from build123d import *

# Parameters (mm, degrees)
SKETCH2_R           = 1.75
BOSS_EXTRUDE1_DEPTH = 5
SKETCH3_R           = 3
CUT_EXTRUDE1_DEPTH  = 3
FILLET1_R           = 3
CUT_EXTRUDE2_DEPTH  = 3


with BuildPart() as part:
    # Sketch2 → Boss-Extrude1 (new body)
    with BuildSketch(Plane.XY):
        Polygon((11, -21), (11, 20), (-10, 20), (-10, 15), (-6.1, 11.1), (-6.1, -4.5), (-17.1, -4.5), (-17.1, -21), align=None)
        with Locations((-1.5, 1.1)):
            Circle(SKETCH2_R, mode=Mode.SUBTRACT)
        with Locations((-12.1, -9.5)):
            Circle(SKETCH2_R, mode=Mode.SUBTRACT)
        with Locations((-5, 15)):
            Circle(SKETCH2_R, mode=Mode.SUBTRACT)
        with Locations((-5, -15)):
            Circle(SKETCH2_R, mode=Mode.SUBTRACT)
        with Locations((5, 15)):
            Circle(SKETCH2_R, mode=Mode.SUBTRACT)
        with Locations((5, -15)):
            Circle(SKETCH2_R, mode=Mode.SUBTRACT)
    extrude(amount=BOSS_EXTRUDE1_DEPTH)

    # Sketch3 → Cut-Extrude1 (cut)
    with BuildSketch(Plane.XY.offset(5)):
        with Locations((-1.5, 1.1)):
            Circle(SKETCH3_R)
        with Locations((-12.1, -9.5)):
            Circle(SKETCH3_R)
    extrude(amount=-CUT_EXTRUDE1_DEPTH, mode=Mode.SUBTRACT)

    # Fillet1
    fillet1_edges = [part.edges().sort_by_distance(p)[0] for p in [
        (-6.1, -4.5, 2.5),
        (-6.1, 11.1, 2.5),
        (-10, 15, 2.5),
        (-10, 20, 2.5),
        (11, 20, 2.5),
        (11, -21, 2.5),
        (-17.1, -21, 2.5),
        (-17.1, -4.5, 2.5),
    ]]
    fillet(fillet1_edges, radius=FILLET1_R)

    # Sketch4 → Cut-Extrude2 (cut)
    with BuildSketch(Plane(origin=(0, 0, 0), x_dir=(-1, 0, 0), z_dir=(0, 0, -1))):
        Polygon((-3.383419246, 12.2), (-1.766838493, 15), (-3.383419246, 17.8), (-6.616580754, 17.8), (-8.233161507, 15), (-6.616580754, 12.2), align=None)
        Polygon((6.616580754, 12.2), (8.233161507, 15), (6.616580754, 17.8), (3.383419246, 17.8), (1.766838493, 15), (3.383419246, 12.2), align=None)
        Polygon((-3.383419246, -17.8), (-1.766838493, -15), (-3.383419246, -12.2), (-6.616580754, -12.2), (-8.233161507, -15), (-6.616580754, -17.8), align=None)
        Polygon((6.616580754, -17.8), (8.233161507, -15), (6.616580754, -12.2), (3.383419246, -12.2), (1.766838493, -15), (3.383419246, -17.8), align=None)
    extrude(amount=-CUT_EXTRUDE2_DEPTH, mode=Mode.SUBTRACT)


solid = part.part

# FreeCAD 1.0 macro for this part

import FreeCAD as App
import Part
import Sketcher
Q = App.Units.Quantity


def edges_at(feature, points):
    """Names of the edges that pass closest to the given points."""
    edges = feature.Shape.Edges
    near = lambda p: min(range(len(edges)), key=lambda i: edges[i].distToShape(Part.Vertex(*p))[0])
    return sorted({f"Edge{near(p) + 1}" for p in points})

doc = App.newDocument("Part")
params = doc.addObject("Spreadsheet::Sheet", "Params")
for row, (alias, value) in enumerate([
    ("sketch1_diameter", "3.5 mm"),
    ("sketch1_width", "21 mm"),
    ("sketch1_width2", "11 mm"),
    ("sketch1_height", "41 mm"),
    ("sketch1_height2", "5 mm"),
    ("pad1_length", "5 mm"),
    ("sketch2_diameter", "6 mm"),
    ("pocket1_length", "3 mm"),
    ("fillet_radius", "3 mm"),
    ("pocket2_length", "3 mm"),
], start=1):
    params.set(f"A{row}", alias)
    params.set(f"B{row}", "=" + value)
    params.setAlias(f"B{row}", alias)

body = doc.addObject("PartDesign::Body", "Body")

# Sketch on XY plane
sketch1 = body.newObject("Sketcher::SketchObject", "Sketch")
sketch1.AttachmentSupport = (doc.getObject("XY_Plane"), [""])
sketch1.MapMode = "FlatFace"
sketch1.addGeometry(Part.LineSegment(App.Vector(11, -21, 0), App.Vector(11, 20, 0)), False)
sketch1.addGeometry(Part.LineSegment(App.Vector(11, 20, 0), App.Vector(-10, 20, 0)), False)
sketch1.addGeometry(Part.LineSegment(App.Vector(-10, 20, 0), App.Vector(-10, 15, 0)), False)
sketch1.addGeometry(Part.LineSegment(App.Vector(-10, 15, 0), App.Vector(-6.1, 11.1, 0)), False)
sketch1.addGeometry(Part.LineSegment(App.Vector(-6.1, 11.1, 0), App.Vector(-6.1, -4.5, 0)), False)
sketch1.addGeometry(Part.LineSegment(App.Vector(-6.1, -4.5, 0), App.Vector(-17.1, -4.5, 0)), False)
sketch1.addGeometry(Part.LineSegment(App.Vector(-17.1, -4.5, 0), App.Vector(-17.1, -21, 0)), False)
sketch1.addGeometry(Part.LineSegment(App.Vector(-17.1, -21, 0), App.Vector(11, -21, 0)), False)
sketch1.addGeometry(Part.Circle(App.Vector(-12.1, -9.5, 0), App.Vector(0, 0, 1), 1.75), False)
sketch1.addGeometry(Part.Circle(App.Vector(-5, -15, 0), App.Vector(0, 0, 1), 1.75), False)
sketch1.addGeometry(Part.Circle(App.Vector(5, -15, 0), App.Vector(0, 0, 1), 1.75), False)
sketch1.addGeometry(Part.Circle(App.Vector(-5, 15, 0), App.Vector(0, 0, 1), 1.75), False)
sketch1.addGeometry(Part.Circle(App.Vector(-1.5, 1.1, 0), App.Vector(0, 0, 1), 1.75), False)
sketch1.addGeometry(Part.Circle(App.Vector(5, 15, 0), App.Vector(0, 0, 1), 1.75), False)
sketch1.addConstraint(Sketcher.Constraint("Coincident", 0, 2, 1, 1))
sketch1.addConstraint(Sketcher.Constraint("Coincident", 1, 2, 2, 1))
sketch1.addConstraint(Sketcher.Constraint("Coincident", 2, 2, 3, 1))
sketch1.addConstraint(Sketcher.Constraint("Coincident", 3, 2, 4, 1))
sketch1.addConstraint(Sketcher.Constraint("Coincident", 4, 2, 5, 1))
sketch1.addConstraint(Sketcher.Constraint("Coincident", 5, 2, 6, 1))
sketch1.addConstraint(Sketcher.Constraint("Coincident", 6, 2, 7, 1))
sketch1.addConstraint(Sketcher.Constraint("Coincident", 7, 2, 0, 1))
sketch1.addConstraint(Sketcher.Constraint("Vertical", 0))
sketch1.addConstraint(Sketcher.Constraint("Horizontal", 1))
sketch1.addConstraint(Sketcher.Constraint("Vertical", 2))
sketch1.addConstraint(Sketcher.Constraint("Vertical", 4))
sketch1.addConstraint(Sketcher.Constraint("Horizontal", 5))
sketch1.addConstraint(Sketcher.Constraint("Vertical", 6))
sketch1.addConstraint(Sketcher.Constraint("Horizontal", 7))
sketch1.addConstraint(Sketcher.Constraint("Equal", 8, 9))
sketch1.addConstraint(Sketcher.Constraint("Equal", 9, 10))
sketch1.addConstraint(Sketcher.Constraint("Equal", 10, 11))
sketch1.addConstraint(Sketcher.Constraint("Equal", 11, 12))
sketch1.addConstraint(Sketcher.Constraint("Equal", 12, 13))
sketch1.addConstraint(Sketcher.Constraint("Symmetric", 10, 3, 11, 3, -1, 1))
sketch1.addConstraint(Sketcher.Constraint("Symmetric", 9, 3, 13, 3, -1, 1))
sketch1.addConstraint(Sketcher.Constraint("Symmetric", 9, 3, 10, 3, -2))
sketch1.addConstraint(Sketcher.Constraint("Horizontal", 13, 3, 2, 2))
sketch1.addConstraint(Sketcher.Constraint("Diameter", 8, Q("3.5 mm")))
sketch1.addConstraint(Sketcher.Constraint("DistanceX", 1, 2, 1, 1, Q("21 mm")))
sketch1.addConstraint(Sketcher.Constraint("DistanceX", 5, 2, 5, 1, Q("11 mm")))
sketch1.addConstraint(Sketcher.Constraint("DistanceY", 0, 1, 0, 2, Q("41 mm")))
sketch1.addConstraint(Sketcher.Constraint("DistanceY", 2, 2, 2, 1, Q("5 mm")))
sketch1.addConstraint(Sketcher.Constraint("Angle", 3, Q("-45 deg")))
sketch1.addConstraint(Sketcher.Constraint("DistanceX", 7, 1, 7, 2, Q("28.1 mm")))
sketch1.addConstraint(Sketcher.Constraint("DistanceY", 4, 2, 4, 1, Q("15.6 mm")))
sketch1.addConstraint(Sketcher.Constraint("DistanceX", 9, 3, -1, 1, Q("5 mm")))
sketch1.addConstraint(Sketcher.Constraint("DistanceY", 9, 3, -1, 1, Q("15 mm")))
sketch1.addConstraint(Sketcher.Constraint("DistanceX", -1, 1, 0, 2, Q("11 mm")))
sketch1.addConstraint(Sketcher.Constraint("DistanceY", 12, 3, 3, 2, Q("10 mm")))
sketch1.addConstraint(Sketcher.Constraint("DistanceX", 8, 3, 4, 2, Q("6 mm")))
sketch1.addConstraint(Sketcher.Constraint("DistanceY", 8, 3, 4, 2, Q("5 mm")))
sketch1.addConstraint(Sketcher.Constraint("DistanceX", 12, 3, -1, 1, Q("1.5 mm")))
sketch1.setExpression("Constraints[24]", "Params.sketch1_diameter")
sketch1.setExpression("Constraints[25]", "Params.sketch1_width")
sketch1.setExpression("Constraints[26]", "Params.sketch1_width2")
sketch1.setExpression("Constraints[27]", "Params.sketch1_height")
sketch1.setExpression("Constraints[28]", "Params.sketch1_height2")
pad1 = body.newObject("PartDesign::Pad", "Pad")
pad1.Profile = sketch1
pad1.setExpression("Length", "Params.pad1_length")

# Sketch on XY plane
sketch2 = body.newObject("Sketcher::SketchObject", "Sketch001")
sketch2.AttachmentSupport = (doc.getObject("XY_Plane"), [""])
sketch2.MapMode = "FlatFace"
sketch2.AttachmentOffset = App.Placement(App.Vector(0, 0, 5), App.Rotation())
sketch2.addGeometry(Part.Circle(App.Vector(-1.5, 1.1, 0), App.Vector(0, 0, 1), 3), False)
sketch2.addGeometry(Part.Circle(App.Vector(-12.1, -9.5, 0), App.Vector(0, 0, 1), 3), False)
sketch2.addConstraint(Sketcher.Constraint("Equal", 0, 1))
sketch2.addConstraint(Sketcher.Constraint("Diameter", 0, Q("6 mm")))
sketch2.addConstraint(Sketcher.Constraint("DistanceX", 0, 3, -1, 1, Q("1.5 mm")))
sketch2.addConstraint(Sketcher.Constraint("DistanceY", -1, 1, 0, 3, Q("1.1 mm")))
sketch2.addConstraint(Sketcher.Constraint("DistanceX", 1, 3, -1, 1, Q("12.1 mm")))
sketch2.addConstraint(Sketcher.Constraint("DistanceY", 1, 3, -1, 1, Q("9.5 mm")))
sketch2.setExpression("Constraints[1]", "Params.sketch2_diameter")
pocket1 = body.newObject("PartDesign::Pocket", "Pocket")
pocket1.Profile = sketch2
pocket1.setExpression("Length", "Params.pocket1_length")
doc.recompute()

fillet = body.newObject("PartDesign::Fillet", "Fillet")
fillet.Base = (pocket1, edges_at(pocket1, [
    (-6.1, -4.5, 2.5),
    (-6.1, 11.1, 2.5),
    (-10, 15, 2.5),
    (-10, 20, 2.5),
    (11, 20, 2.5),
    (11, -21, 2.5),
    (-17.1, -21, 2.5),
    (-17.1, -4.5, 2.5),
]))
fillet.setExpression("Radius", "Params.fillet_radius")

# Sketch on XY plane
sketch3 = body.newObject("Sketcher::SketchObject", "Sketch002")
sketch3.AttachmentSupport = (doc.getObject("XY_Plane"), [""])
sketch3.MapMode = "FlatFace"
sketch3.addGeometry(Part.LineSegment(App.Vector(3.383419, 12.2, 0), App.Vector(1.766838, 15, 0)), False)
sketch3.addGeometry(Part.LineSegment(App.Vector(1.766838, 15, 0), App.Vector(3.383419, 17.8, 0)), False)
sketch3.addGeometry(Part.LineSegment(App.Vector(3.383419, 17.8, 0), App.Vector(6.616581, 17.8, 0)), False)
sketch3.addGeometry(Part.LineSegment(App.Vector(6.616581, 17.8, 0), App.Vector(8.233162, 15, 0)), False)
sketch3.addGeometry(Part.LineSegment(App.Vector(8.233162, 15, 0), App.Vector(6.616581, 12.2, 0)), False)
sketch3.addGeometry(Part.LineSegment(App.Vector(6.616581, 12.2, 0), App.Vector(3.383419, 12.2, 0)), False)
sketch3.addGeometry(Part.LineSegment(App.Vector(-6.616581, 12.2, 0), App.Vector(-8.233162, 15, 0)), False)
sketch3.addGeometry(Part.LineSegment(App.Vector(-8.233162, 15, 0), App.Vector(-6.616581, 17.8, 0)), False)
sketch3.addGeometry(Part.LineSegment(App.Vector(-6.616581, 17.8, 0), App.Vector(-3.383419, 17.8, 0)), False)
sketch3.addGeometry(Part.LineSegment(App.Vector(-3.383419, 17.8, 0), App.Vector(-1.766838, 15, 0)), False)
sketch3.addGeometry(Part.LineSegment(App.Vector(-1.766838, 15, 0), App.Vector(-3.383419, 12.2, 0)), False)
sketch3.addGeometry(Part.LineSegment(App.Vector(-3.383419, 12.2, 0), App.Vector(-6.616581, 12.2, 0)), False)
sketch3.addGeometry(Part.LineSegment(App.Vector(3.383419, -17.8, 0), App.Vector(1.766838, -15, 0)), False)
sketch3.addGeometry(Part.LineSegment(App.Vector(1.766838, -15, 0), App.Vector(3.383419, -12.2, 0)), False)
sketch3.addGeometry(Part.LineSegment(App.Vector(3.383419, -12.2, 0), App.Vector(6.616581, -12.2, 0)), False)
sketch3.addGeometry(Part.LineSegment(App.Vector(6.616581, -12.2, 0), App.Vector(8.233162, -15, 0)), False)
sketch3.addGeometry(Part.LineSegment(App.Vector(8.233162, -15, 0), App.Vector(6.616581, -17.8, 0)), False)
sketch3.addGeometry(Part.LineSegment(App.Vector(6.616581, -17.8, 0), App.Vector(3.383419, -17.8, 0)), False)
sketch3.addGeometry(Part.LineSegment(App.Vector(-6.616581, -17.8, 0), App.Vector(-8.233162, -15, 0)), False)
sketch3.addGeometry(Part.LineSegment(App.Vector(-8.233162, -15, 0), App.Vector(-6.616581, -12.2, 0)), False)
sketch3.addGeometry(Part.LineSegment(App.Vector(-6.616581, -12.2, 0), App.Vector(-3.383419, -12.2, 0)), False)
sketch3.addGeometry(Part.LineSegment(App.Vector(-3.383419, -12.2, 0), App.Vector(-1.766838, -15, 0)), False)
sketch3.addGeometry(Part.LineSegment(App.Vector(-1.766838, -15, 0), App.Vector(-3.383419, -17.8, 0)), False)
sketch3.addGeometry(Part.LineSegment(App.Vector(-3.383419, -17.8, 0), App.Vector(-6.616581, -17.8, 0)), False)
sketch3.addConstraint(Sketcher.Constraint("Coincident", 0, 2, 1, 1))
sketch3.addConstraint(Sketcher.Constraint("Coincident", 1, 2, 2, 1))
sketch3.addConstraint(Sketcher.Constraint("Coincident", 2, 2, 3, 1))
sketch3.addConstraint(Sketcher.Constraint("Coincident", 3, 2, 4, 1))
sketch3.addConstraint(Sketcher.Constraint("Coincident", 4, 2, 5, 1))
sketch3.addConstraint(Sketcher.Constraint("Coincident", 5, 2, 0, 1))
sketch3.addConstraint(Sketcher.Constraint("Coincident", 6, 2, 7, 1))
sketch3.addConstraint(Sketcher.Constraint("Coincident", 7, 2, 8, 1))
sketch3.addConstraint(Sketcher.Constraint("Coincident", 8, 2, 9, 1))
sketch3.addConstraint(Sketcher.Constraint("Coincident", 9, 2, 10, 1))
sketch3.addConstraint(Sketcher.Constraint("Coincident", 10, 2, 11, 1))
sketch3.addConstraint(Sketcher.Constraint("Coincident", 11, 2, 6, 1))
sketch3.addConstraint(Sketcher.Constraint("Coincident", 12, 2, 13, 1))
sketch3.addConstraint(Sketcher.Constraint("Coincident", 13, 2, 14, 1))
sketch3.addConstraint(Sketcher.Constraint("Coincident", 14, 2, 15, 1))
sketch3.addConstraint(Sketcher.Constraint("Coincident", 15, 2, 16, 1))
sketch3.addConstraint(Sketcher.Constraint("Coincident", 16, 2, 17, 1))
sketch3.addConstraint(Sketcher.Constraint("Coincident", 17, 2, 12, 1))
sketch3.addConstraint(Sketcher.Constraint("Coincident", 18, 2, 19, 1))
sketch3.addConstraint(Sketcher.Constraint("Coincident", 19, 2, 20, 1))
sketch3.addConstraint(Sketcher.Constraint("Coincident", 20, 2, 21, 1))
sketch3.addConstraint(Sketcher.Constraint("Coincident", 21, 2, 22, 1))
sketch3.addConstraint(Sketcher.Constraint("Coincident", 22, 2, 23, 1))
sketch3.addConstraint(Sketcher.Constraint("Coincident", 23, 2, 18, 1))
sketch3.addConstraint(Sketcher.Constraint("Horizontal", 2))
sketch3.addConstraint(Sketcher.Constraint("Horizontal", 5))
sketch3.addConstraint(Sketcher.Constraint("Horizontal", 8))
sketch3.addConstraint(Sketcher.Constraint("Horizontal", 11))
sketch3.addConstraint(Sketcher.Constraint("Horizontal", 14))
sketch3.addConstraint(Sketcher.Constraint("Horizontal", 17))
sketch3.addConstraint(Sketcher.Constraint("Horizontal", 20))
sketch3.addConstraint(Sketcher.Constraint("Horizontal", 23))
sketch3.addConstraint(Sketcher.Constraint("Symmetric", 9, 2, 12, 2, -1, 1))
sketch3.addConstraint(Sketcher.Constraint("Symmetric", 10, 2, 13, 2, -1, 1))
sketch3.addConstraint(Sketcher.Constraint("Symmetric", 6, 2, 15, 2, -1, 1))
sketch3.addConstraint(Sketcher.Constraint("Symmetric", 7, 2, 16, 2, -1, 1))
sketch3.addConstraint(Sketcher.Constraint("Symmetric", 3, 2, 18, 2, -1, 1))
sketch3.addConstraint(Sketcher.Constraint("Symmetric", 4, 2, 19, 2, -1, 1))
sketch3.addConstraint(Sketcher.Constraint("Symmetric", 0, 2, 21, 2, -1, 1))
sketch3.addConstraint(Sketcher.Constraint("Symmetric", 1, 2, 22, 2, -1, 1))
sketch3.addConstraint(Sketcher.Constraint("Symmetric", 3, 2, 6, 2, -2))
sketch3.addConstraint(Sketcher.Constraint("Symmetric", 2, 2, 7, 2, -2))
sketch3.addConstraint(Sketcher.Constraint("Symmetric", 0, 2, 9, 2, -2))
sketch3.addConstraint(Sketcher.Constraint("Symmetric", 5, 2, 10, 2, -2))
sketch3.addConstraint(Sketcher.Constraint("Parallel", 0, 3))
sketch3.addConstraint(Sketcher.Constraint("Parallel", 1, 4))
sketch3.addConstraint(Sketcher.Constraint("Parallel", 3, 6))
sketch3.addConstraint(Sketcher.Constraint("Parallel", 4, 7))
sketch3.addConstraint(Sketcher.Constraint("Parallel", 6, 9))
sketch3.addConstraint(Sketcher.Constraint("Parallel", 9, 12))
sketch3.addConstraint(Sketcher.Constraint("Parallel", 12, 15))
sketch3.addConstraint(Sketcher.Constraint("Parallel", 15, 18))
sketch3.addConstraint(Sketcher.Constraint("Parallel", 18, 21))
sketch3.addConstraint(Sketcher.Constraint("Horizontal", 0, 2, 3, 2))
sketch3.addConstraint(Sketcher.Constraint("Vertical", 2, 2, 4, 2))
sketch3.addConstraint(Sketcher.Constraint("Angle", 0, Q("120 deg")))
sketch3.addConstraint(Sketcher.Constraint("DistanceY", -1, 1, 0, 2, Q("15 mm")))
sketch3.addConstraint(Sketcher.Constraint("DistanceX", 6, 2, 0, 2, Q("10 mm")))
sketch3.addConstraint(Sketcher.Constraint("DistanceY", -1, 1, 1, 2, Q("17.8 mm")))
sketch3.addConstraint(Sketcher.Constraint("DistanceX", 2, 1, 2, 2, Q("3.233162 mm")))
pocket2 = body.newObject("PartDesign::Pocket", "Pocket001")
pocket2.Profile = sketch3
pocket2.setExpression("Length", "Params.pocket2_length")
pocket2.Reversed = True

doc.recompute()
